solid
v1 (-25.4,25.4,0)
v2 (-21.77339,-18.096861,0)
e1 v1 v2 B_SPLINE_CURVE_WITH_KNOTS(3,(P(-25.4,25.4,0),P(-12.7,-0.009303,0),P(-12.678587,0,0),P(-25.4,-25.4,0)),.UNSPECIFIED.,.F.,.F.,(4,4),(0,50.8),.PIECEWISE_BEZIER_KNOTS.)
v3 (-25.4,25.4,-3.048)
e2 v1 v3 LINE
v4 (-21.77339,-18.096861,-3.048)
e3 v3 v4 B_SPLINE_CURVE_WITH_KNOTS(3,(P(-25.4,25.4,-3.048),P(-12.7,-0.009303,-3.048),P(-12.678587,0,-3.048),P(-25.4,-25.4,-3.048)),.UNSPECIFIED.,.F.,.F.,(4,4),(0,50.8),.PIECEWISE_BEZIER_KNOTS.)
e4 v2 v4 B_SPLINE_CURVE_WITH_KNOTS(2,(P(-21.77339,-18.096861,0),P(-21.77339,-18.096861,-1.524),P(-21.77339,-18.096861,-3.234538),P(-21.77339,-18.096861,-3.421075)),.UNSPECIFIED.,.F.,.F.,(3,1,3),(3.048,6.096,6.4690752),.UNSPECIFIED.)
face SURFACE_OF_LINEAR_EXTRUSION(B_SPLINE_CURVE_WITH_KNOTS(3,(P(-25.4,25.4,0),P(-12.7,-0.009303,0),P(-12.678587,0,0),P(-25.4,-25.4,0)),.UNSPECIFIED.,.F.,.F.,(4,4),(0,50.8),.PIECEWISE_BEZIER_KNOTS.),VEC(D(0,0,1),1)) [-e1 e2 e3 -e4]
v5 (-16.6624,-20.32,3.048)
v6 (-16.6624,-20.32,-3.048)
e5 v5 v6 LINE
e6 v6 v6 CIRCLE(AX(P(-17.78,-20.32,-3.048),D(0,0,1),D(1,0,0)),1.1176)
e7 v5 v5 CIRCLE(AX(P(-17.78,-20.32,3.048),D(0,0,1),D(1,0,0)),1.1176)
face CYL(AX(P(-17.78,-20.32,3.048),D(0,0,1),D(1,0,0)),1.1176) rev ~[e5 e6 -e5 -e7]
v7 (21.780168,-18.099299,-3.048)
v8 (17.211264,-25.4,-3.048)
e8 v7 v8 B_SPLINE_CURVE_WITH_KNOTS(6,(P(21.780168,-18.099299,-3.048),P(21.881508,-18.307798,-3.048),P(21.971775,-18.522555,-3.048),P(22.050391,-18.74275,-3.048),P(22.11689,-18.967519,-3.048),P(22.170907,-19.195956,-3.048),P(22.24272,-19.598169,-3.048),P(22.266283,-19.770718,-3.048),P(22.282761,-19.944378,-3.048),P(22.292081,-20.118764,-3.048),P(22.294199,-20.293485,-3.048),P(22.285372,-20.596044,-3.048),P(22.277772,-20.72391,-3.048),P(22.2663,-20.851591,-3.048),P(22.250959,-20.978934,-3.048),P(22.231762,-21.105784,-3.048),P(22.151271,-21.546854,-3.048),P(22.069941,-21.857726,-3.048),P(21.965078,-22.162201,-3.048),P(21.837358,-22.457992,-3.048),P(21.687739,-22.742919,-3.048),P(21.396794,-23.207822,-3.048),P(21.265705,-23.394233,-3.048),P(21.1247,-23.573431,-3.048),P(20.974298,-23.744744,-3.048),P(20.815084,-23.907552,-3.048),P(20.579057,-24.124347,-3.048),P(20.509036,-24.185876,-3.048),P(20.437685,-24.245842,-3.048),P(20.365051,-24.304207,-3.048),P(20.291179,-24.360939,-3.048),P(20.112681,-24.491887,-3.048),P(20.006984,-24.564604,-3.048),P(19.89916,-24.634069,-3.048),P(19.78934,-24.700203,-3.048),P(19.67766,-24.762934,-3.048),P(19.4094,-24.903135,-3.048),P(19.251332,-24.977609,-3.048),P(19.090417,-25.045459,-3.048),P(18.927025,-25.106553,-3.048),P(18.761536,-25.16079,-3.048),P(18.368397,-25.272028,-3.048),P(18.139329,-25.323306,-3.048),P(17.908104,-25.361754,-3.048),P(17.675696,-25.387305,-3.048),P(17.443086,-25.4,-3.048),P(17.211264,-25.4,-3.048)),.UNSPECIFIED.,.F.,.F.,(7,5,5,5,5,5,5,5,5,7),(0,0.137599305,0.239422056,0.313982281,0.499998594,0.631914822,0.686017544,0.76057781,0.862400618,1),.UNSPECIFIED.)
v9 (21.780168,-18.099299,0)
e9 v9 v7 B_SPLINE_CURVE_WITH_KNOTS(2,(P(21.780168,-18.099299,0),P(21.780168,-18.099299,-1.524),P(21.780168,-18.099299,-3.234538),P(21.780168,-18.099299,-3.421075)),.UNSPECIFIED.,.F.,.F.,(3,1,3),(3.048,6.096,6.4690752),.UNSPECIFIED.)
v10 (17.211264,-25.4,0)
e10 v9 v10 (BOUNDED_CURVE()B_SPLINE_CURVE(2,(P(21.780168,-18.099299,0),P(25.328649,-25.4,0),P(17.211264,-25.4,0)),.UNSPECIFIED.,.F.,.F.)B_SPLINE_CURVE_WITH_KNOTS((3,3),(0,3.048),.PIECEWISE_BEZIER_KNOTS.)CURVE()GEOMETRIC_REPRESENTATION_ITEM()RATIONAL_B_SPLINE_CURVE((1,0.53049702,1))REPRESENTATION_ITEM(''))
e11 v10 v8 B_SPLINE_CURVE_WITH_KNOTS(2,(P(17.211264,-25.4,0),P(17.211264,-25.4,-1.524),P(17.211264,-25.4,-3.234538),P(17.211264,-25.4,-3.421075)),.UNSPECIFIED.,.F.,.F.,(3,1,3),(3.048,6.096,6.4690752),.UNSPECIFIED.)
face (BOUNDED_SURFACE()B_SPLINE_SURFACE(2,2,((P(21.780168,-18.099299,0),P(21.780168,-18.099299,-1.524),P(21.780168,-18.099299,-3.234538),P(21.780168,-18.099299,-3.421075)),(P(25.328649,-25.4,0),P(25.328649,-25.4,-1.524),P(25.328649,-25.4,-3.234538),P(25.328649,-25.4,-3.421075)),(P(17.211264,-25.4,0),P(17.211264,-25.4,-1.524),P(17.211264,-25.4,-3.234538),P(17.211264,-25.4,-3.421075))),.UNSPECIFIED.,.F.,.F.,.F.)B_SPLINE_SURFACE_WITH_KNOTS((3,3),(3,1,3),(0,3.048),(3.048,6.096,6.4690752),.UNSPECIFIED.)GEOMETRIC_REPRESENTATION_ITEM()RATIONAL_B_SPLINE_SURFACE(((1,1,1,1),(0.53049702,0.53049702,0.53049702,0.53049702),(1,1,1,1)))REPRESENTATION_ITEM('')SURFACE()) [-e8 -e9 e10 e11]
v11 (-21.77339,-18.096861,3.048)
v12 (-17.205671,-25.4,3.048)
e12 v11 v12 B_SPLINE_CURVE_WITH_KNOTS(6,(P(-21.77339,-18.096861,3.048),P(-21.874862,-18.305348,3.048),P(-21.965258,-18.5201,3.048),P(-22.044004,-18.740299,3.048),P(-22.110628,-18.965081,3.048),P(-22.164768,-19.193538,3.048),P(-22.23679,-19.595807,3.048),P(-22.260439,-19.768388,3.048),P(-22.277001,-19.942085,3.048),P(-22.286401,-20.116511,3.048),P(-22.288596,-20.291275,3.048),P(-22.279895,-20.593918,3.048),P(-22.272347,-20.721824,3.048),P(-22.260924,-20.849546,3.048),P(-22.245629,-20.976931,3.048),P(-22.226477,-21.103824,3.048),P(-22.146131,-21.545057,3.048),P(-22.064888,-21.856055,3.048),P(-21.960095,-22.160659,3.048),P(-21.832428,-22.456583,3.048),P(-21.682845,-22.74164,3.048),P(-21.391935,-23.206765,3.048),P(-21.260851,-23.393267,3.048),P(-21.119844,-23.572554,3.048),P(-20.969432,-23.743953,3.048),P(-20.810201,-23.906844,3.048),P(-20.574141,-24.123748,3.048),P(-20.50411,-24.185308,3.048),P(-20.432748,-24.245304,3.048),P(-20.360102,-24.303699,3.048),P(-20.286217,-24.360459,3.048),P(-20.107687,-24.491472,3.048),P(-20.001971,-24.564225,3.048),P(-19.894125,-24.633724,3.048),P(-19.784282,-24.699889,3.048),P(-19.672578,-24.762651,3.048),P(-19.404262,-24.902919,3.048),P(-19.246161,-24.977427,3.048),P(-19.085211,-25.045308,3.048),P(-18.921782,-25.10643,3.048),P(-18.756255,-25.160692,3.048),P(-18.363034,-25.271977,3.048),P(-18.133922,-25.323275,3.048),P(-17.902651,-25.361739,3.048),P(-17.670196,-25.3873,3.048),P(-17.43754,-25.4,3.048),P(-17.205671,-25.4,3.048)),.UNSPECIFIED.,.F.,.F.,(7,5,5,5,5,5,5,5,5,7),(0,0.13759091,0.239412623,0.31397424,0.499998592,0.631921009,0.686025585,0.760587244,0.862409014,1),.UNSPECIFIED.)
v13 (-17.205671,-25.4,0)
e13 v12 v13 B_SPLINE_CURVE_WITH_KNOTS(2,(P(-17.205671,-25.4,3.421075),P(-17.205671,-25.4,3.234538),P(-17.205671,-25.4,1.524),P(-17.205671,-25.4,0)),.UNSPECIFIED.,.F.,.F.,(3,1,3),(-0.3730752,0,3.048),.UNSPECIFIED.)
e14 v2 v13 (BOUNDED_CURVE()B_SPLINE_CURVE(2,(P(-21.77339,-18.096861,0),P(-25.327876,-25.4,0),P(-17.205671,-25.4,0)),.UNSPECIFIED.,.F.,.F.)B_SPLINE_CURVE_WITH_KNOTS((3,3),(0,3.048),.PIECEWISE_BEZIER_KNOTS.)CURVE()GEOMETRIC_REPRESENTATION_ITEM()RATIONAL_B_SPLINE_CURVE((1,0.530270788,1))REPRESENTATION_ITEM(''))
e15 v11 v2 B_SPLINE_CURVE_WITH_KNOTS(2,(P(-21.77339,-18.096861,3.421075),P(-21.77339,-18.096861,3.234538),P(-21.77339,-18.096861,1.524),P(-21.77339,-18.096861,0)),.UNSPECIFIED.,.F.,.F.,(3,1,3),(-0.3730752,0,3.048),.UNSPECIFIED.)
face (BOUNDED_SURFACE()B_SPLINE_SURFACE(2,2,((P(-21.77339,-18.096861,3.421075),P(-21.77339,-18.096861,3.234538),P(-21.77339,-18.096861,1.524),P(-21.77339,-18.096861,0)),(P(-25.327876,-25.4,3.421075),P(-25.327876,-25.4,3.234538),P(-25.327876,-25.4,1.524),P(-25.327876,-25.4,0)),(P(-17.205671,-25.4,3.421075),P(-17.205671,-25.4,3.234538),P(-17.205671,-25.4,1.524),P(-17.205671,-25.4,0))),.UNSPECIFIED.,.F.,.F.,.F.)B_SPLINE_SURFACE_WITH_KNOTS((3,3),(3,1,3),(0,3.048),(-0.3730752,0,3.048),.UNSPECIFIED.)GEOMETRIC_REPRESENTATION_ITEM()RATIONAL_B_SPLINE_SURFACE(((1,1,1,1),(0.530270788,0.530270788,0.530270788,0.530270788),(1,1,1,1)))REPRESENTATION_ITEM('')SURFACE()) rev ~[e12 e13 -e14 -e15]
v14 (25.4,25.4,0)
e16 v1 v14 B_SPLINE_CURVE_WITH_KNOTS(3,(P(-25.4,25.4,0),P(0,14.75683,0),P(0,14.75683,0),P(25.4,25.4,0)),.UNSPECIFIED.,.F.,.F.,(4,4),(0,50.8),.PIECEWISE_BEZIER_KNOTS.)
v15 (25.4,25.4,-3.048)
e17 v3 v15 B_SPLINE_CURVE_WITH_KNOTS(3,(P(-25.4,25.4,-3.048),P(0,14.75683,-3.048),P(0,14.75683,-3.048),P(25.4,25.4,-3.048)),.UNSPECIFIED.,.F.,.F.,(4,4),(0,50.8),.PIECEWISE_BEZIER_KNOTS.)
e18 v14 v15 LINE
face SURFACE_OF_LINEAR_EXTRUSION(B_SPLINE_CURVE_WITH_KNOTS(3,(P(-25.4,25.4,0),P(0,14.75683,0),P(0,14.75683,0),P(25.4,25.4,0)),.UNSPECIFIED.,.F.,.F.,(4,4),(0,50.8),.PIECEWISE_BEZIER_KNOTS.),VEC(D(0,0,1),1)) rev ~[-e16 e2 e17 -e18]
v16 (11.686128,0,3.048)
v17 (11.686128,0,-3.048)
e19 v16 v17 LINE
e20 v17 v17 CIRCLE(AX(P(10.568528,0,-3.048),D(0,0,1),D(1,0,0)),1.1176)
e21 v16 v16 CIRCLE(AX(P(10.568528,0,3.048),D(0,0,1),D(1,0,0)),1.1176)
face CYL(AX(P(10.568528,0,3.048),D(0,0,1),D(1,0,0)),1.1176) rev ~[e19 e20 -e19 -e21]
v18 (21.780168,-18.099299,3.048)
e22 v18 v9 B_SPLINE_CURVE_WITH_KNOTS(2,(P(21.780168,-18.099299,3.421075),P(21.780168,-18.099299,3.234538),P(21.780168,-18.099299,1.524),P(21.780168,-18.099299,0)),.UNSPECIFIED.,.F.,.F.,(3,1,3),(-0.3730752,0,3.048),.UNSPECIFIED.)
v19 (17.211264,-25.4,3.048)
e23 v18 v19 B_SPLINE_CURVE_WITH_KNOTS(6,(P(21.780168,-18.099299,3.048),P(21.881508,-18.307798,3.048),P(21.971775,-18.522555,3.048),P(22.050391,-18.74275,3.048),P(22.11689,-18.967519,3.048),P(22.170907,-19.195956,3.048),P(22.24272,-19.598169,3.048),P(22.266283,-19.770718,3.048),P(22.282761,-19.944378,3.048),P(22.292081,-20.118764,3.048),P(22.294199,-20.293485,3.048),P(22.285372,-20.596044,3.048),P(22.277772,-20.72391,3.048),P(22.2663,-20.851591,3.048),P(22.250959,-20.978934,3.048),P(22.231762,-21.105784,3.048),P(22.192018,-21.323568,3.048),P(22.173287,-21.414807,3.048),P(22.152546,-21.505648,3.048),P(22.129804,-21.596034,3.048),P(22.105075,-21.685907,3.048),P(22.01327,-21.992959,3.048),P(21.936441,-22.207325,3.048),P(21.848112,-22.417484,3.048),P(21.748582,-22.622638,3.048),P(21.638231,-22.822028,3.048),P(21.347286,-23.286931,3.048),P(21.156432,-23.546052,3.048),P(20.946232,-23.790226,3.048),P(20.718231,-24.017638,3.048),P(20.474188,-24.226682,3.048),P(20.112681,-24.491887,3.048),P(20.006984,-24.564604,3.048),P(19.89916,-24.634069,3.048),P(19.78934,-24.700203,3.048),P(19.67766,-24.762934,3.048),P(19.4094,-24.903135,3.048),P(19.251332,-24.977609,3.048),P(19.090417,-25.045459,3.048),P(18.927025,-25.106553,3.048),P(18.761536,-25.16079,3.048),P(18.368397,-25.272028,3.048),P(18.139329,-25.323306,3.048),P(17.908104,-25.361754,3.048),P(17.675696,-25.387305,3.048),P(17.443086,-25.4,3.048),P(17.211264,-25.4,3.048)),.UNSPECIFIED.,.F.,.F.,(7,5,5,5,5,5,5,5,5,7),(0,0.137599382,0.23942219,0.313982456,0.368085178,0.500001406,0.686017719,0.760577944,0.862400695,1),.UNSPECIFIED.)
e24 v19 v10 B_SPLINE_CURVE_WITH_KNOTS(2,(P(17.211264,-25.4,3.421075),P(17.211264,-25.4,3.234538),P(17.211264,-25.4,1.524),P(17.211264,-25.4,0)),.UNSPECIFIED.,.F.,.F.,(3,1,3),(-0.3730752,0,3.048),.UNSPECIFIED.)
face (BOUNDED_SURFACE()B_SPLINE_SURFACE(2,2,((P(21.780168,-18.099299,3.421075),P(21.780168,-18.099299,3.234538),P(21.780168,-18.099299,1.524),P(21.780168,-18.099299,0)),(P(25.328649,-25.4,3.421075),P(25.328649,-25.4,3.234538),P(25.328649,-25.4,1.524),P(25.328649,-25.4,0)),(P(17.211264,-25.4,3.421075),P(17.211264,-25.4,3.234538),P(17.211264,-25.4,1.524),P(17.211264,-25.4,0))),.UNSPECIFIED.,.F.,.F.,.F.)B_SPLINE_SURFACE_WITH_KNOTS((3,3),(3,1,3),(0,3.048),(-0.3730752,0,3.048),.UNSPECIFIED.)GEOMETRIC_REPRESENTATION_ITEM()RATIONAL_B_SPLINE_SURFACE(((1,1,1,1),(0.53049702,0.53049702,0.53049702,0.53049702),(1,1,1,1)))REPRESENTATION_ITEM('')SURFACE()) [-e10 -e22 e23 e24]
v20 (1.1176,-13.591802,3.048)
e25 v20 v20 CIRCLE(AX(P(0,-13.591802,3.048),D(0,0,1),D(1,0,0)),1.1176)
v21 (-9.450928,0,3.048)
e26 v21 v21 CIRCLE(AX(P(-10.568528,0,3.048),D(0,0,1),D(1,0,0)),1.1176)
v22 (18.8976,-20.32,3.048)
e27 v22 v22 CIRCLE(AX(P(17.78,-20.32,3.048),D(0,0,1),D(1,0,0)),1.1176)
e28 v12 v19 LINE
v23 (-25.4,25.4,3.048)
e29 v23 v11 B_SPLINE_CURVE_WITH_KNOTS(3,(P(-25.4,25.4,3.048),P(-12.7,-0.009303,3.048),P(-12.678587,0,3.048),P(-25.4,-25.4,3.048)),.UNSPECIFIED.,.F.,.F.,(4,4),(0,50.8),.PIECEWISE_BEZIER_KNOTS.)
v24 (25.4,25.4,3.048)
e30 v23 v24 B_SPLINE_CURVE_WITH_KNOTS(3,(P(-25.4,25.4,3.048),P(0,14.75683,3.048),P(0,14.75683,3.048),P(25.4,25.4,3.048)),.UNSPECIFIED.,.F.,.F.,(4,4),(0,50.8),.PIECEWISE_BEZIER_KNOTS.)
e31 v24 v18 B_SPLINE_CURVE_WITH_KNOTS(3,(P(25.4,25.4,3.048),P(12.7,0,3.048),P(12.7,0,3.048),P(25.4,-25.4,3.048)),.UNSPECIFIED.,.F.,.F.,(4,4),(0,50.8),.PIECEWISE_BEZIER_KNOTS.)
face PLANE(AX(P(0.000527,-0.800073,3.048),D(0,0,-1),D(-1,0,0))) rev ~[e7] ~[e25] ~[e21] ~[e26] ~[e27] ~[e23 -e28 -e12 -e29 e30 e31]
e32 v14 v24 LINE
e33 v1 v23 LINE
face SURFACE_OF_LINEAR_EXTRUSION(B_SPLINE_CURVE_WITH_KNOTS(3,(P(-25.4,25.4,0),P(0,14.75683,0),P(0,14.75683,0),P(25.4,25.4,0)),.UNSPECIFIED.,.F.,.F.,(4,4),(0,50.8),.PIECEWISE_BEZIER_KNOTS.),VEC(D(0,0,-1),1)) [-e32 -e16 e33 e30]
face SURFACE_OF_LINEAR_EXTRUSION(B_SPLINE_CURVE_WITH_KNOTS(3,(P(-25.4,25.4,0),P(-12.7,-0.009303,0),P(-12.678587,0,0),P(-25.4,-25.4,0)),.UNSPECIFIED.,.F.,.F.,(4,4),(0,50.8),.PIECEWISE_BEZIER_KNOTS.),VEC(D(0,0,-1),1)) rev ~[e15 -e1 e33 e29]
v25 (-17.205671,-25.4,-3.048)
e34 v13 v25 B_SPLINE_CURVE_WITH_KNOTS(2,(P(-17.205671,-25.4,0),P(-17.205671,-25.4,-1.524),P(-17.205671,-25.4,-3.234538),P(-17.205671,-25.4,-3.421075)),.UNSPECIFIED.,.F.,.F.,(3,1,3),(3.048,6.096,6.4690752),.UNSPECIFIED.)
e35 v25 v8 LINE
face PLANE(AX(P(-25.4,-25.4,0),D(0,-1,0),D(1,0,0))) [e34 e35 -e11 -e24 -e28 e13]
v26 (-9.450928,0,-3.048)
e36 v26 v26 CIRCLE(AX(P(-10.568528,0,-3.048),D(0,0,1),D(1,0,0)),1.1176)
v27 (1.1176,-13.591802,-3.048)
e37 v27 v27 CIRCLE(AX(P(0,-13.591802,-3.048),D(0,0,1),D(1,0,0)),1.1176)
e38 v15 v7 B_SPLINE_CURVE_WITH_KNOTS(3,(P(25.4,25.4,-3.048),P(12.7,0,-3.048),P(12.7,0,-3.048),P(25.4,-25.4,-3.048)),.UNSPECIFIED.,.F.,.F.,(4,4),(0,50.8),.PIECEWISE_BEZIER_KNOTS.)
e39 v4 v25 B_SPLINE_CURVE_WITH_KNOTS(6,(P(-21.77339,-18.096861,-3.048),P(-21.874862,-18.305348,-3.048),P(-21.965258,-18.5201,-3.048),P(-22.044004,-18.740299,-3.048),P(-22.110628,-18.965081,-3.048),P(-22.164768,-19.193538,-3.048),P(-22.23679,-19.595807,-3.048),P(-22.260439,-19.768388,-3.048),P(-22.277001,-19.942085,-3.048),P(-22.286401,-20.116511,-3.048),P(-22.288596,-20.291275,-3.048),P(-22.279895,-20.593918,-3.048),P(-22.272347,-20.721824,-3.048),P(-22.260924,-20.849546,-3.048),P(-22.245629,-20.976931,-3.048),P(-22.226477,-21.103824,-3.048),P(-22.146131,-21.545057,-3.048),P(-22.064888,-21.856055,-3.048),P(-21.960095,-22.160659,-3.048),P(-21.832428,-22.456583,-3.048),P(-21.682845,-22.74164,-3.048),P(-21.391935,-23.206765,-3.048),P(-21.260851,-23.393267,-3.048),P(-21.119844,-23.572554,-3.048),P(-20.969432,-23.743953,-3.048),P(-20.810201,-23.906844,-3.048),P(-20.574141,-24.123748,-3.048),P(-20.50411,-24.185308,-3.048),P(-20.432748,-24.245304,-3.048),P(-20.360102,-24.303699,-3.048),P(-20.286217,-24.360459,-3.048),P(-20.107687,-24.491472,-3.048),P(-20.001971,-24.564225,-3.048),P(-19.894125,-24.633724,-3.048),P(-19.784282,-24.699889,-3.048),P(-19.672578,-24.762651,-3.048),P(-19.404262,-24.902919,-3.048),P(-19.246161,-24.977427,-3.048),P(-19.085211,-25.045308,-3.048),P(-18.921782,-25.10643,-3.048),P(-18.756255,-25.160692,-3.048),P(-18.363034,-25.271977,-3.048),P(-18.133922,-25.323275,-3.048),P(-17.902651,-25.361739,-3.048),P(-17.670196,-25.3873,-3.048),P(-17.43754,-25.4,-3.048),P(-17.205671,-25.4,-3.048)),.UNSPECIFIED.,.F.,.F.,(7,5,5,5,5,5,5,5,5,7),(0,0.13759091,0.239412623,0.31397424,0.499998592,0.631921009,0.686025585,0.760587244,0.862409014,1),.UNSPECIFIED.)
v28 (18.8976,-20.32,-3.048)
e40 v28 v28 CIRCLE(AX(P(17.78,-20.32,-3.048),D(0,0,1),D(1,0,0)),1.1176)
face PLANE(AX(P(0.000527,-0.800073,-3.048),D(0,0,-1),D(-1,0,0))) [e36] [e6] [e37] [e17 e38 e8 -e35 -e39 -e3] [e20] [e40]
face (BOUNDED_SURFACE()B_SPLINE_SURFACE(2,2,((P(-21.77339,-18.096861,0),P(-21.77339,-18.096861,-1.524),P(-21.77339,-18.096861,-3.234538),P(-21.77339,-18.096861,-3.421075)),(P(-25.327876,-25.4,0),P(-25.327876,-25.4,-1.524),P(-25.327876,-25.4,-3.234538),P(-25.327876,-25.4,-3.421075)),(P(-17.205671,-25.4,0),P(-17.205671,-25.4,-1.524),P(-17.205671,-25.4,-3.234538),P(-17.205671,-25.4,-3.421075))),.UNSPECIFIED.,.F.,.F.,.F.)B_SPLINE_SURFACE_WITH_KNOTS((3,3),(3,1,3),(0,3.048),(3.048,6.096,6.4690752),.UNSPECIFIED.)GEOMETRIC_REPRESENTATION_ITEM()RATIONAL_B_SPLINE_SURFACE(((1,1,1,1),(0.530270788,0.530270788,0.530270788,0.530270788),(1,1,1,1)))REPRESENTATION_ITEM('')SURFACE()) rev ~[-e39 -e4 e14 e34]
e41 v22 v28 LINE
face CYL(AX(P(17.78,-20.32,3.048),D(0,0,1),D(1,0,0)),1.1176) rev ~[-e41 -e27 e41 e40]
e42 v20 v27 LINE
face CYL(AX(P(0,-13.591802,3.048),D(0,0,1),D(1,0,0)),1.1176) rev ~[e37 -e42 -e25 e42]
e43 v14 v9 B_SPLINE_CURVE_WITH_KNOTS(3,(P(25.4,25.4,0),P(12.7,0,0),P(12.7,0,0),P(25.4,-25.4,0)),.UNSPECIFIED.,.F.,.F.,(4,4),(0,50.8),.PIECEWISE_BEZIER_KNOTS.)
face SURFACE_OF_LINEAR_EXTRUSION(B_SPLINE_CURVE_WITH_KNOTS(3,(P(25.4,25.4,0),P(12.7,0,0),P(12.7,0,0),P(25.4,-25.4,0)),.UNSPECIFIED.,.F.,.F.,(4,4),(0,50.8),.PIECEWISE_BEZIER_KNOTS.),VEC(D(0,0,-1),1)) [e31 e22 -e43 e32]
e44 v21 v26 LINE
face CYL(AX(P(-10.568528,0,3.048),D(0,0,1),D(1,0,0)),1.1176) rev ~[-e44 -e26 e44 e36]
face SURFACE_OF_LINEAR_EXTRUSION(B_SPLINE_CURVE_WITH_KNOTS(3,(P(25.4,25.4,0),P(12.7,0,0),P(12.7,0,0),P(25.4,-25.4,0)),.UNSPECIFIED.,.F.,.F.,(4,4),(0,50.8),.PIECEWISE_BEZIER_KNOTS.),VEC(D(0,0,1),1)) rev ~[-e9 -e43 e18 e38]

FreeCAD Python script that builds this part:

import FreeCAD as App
import Part
import Sketcher
from FreeCAD import Vector
Q = App.Units.Quantity


def edges_at(feature, points):
    """Names of the edges that pass closest to the given points."""
    edges = feature.Shape.Edges
    near = lambda p: min(range(len(edges)), key=lambda i: edges[i].distToShape(Part.Vertex(*p))[0])
    return sorted({f"Edge{near(p) + 1}" for p in points})

doc = App.newDocument("Part")
body = doc.addObject("PartDesign::Body", "Body")

# Sketch on XY plane
sketch1 = doc.addObject("Sketcher::SketchObject", "Sketch")
body.addObject(sketch1)
sketch1.AttachmentSupport = (doc.XY_Plane, [""])
sketch1.MapMode = "FlatFace"
sketch1.addGeometry(Part.BSplineCurve([Vector(-25.4, 25.4, 0), Vector(0, 14.75683, 0), Vector(0, 14.75683, 0), Vector(25.4, 25.4, 0)], [4, 4], [0, 50.8], False, 3, [1, 1, 1, 1], False), False)
sketch1.addGeometry(Part.BSplineCurve([Vector(-25.4, 25.4, 0), Vector(-12.7, -0.009303, 0), Vector(-12.678587, 0, 0), Vector(-25.4, -25.4, 0)], [4, 4], [0, 50.8], False, 3, [1, 1, 1, 1], False), False)
sketch1.addGeometry(Part.LineSegment(Vector(-25.4, -25.4, 0), Vector(25.4, -25.4, 0)), False)
sketch1.addGeometry(Part.BSplineCurve([Vector(25.4, 25.4, 0), Vector(12.7, 0, 0), Vector(12.7, 0, 0), Vector(25.4, -25.4, 0)], [4, 4], [0, 50.8], False, 3, [1, 1, 1, 1], False), False)
sketch1.addConstraint(Sketcher.Constraint("Block", 0))
sketch1.addConstraint(Sketcher.Constraint("Block", 1))
sketch1.addConstraint(Sketcher.Constraint("Block", 3))
sketch1.addConstraint(Sketcher.Constraint("Coincident", 1, 2, 2, 1))
sketch1.addConstraint(Sketcher.Constraint("Coincident", 2, 2, 3, 2))
pad1 = doc.addObject("PartDesign::Pad", "Pad")
body.addObject(pad1)
pad1.Profile = sketch1
pad1.Length = Q("0.24 in")
pad1.Midplane = True

# Sketch on XY plane
sketch2 = doc.addObject("Sketcher::SketchObject", "Sketch001")
body.addObject(sketch2)
sketch2.AttachmentSupport = (doc.XY_Plane, [""])
sketch2.MapMode = "FlatFace"
sketch2.AttachmentOffset = App.Placement(Vector(0, 0, 0.12 * 25.4), App.Rotation())
sketch2.addGeometry(Part.Circle(Vector(-17.8, -20.3, 0), Vector(0, 0, 1), 1.1), False)
sketch2.addGeometry(Part.Circle(Vector(17.8, -20.3, 0), Vector(0, 0, 1), 1.1), False)
sketch2.addGeometry(Part.Circle(Vector(0, -13.6, 0), Vector(0, 0, 1), 1.1), False)
sketch2.addGeometry(Part.Circle(Vector(-10.6, 0, 0), Vector(0, 0, 1), 1.1), False)
sketch2.addGeometry(Part.Circle(Vector(10.6, 0, 0), Vector(0, 0, 1), 1.1), False)
sketch2.addConstraint(Sketcher.Constraint("Equal", 0, 1))
sketch2.addConstraint(Sketcher.Constraint("Equal", 1, 2))
sketch2.addConstraint(Sketcher.Constraint("Equal", 2, 3))
sketch2.addConstraint(Sketcher.Constraint("Equal", 3, 4))
sketch2.addConstraint(Sketcher.Constraint("Symmetric", 3, 3, 4, 3, -1, 1))
sketch2.addConstraint(Sketcher.Constraint("Symmetric", 0, 3, 1, 3, -2))
sketch2.addConstraint(Sketcher.Constraint("PointOnObject", 2, 3, -2))
sketch2.addConstraint(Sketcher.Constraint("PointOnObject", 3, 3, -1))
sketch2.addConstraint(Sketcher.Constraint("Diameter", 0, Q("0.088 in")))
sketch2.addConstraint(Sketcher.Constraint("DistanceX", 0, 3, -1, 1, Q("0.7 in")))
sketch2.addConstraint(Sketcher.Constraint("DistanceY", 0, 3, -1, 1, Q("0.8 in")))
sketch2.addConstraint(Sketcher.Constraint("DistanceY", 0, 3, 2, 3, Q("6.728198 mm")))
sketch2.addConstraint(Sketcher.Constraint("DistanceX", 3, 3, 1, 3, Q("28.348528 mm")))
pocket1 = doc.addObject("PartDesign::Pocket", "Pocket")
body.addObject(pocket1)
pocket1.Profile = sketch2
pocket1.Length = Q("0.25 in")
doc.recompute()

fillet = doc.addObject("PartDesign::Fillet", "Fillet")
body.addObject(fillet)
fillet.Base = (pocket1, edges_at(pocket1, [(-25.4, -25.4, -1.524), (25.4, -25.4, -1.524)]))
fillet.Radius = Q("0.2 in")

doc.recompute()
